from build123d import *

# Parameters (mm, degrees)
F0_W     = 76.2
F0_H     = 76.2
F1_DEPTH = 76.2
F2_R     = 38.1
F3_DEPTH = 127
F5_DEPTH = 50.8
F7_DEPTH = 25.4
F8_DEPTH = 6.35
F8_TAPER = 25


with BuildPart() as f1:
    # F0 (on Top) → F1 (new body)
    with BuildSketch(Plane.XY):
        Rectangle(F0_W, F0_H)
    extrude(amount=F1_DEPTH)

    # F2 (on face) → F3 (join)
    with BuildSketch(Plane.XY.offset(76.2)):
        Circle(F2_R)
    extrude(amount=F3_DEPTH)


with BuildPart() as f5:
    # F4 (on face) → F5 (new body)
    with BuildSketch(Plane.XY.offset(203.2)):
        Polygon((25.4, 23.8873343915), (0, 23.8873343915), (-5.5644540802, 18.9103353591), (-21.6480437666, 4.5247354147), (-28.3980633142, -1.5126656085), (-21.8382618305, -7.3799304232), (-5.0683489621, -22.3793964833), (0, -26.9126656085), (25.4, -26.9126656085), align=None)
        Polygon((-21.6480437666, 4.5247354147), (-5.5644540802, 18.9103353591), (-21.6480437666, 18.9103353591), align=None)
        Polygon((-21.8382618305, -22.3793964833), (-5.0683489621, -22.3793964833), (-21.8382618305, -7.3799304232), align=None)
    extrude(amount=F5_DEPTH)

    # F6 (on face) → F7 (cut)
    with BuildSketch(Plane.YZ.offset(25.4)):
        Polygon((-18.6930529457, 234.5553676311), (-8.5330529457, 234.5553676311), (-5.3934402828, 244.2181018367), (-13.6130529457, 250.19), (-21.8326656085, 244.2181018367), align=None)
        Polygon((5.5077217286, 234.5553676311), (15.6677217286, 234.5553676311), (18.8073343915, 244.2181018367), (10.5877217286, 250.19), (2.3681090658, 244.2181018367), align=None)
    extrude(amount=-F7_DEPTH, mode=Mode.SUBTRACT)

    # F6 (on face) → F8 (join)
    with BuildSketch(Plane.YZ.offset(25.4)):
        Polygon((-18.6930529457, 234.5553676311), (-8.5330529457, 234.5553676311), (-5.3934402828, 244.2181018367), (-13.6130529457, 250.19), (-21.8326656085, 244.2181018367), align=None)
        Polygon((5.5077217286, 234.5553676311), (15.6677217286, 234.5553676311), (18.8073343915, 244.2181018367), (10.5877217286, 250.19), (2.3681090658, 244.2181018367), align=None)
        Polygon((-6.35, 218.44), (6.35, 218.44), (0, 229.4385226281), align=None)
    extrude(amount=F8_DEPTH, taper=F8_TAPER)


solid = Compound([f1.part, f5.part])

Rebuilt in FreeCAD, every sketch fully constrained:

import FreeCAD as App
import Part
import Sketcher
from FreeCAD import Vector
Q = App.Units.Quantity

doc = App.newDocument("Part")
body = doc.addObject("PartDesign::Body", "Body")

sketch1 = body.newObject("Sketcher::SketchObject", "Sketch")
sketch1.AttachmentSupport = (doc.getObject("XY_Plane"), [""])
sketch1.MapMode = "FlatFace"
sketch1.addGeometry(Part.LineSegment(Vector(-38, 38, 0), Vector(-38, -38, 0)), False)
sketch1.addGeometry(Part.LineSegment(Vector(-38, -38, 0), Vector(38, -38, 0)), False)
sketch1.addGeometry(Part.LineSegment(Vector(38, -38, 0), Vector(38, 38, 0)), False)
sketch1.addGeometry(Part.LineSegment(Vector(38, 38, 0), Vector(-38, 38, 0)), False)
sketch1.addConstraint(Sketcher.Constraint("Coincident", 0, 2, 1, 1))
sketch1.addConstraint(Sketcher.Constraint("Coincident", 1, 2, 2, 1))
sketch1.addConstraint(Sketcher.Constraint("Coincident", 2, 2, 3, 1))
sketch1.addConstraint(Sketcher.Constraint("Coincident", 3, 2, 0, 1))
sketch1.addConstraint(Sketcher.Constraint("Vertical", 0))
sketch1.addConstraint(Sketcher.Constraint("Horizontal", 1))
sketch1.addConstraint(Sketcher.Constraint("Vertical", 2))
sketch1.addConstraint(Sketcher.Constraint("Horizontal", 3))
sketch1.addConstraint(Sketcher.Constraint("Symmetric", 0, 2, 2, 2, -1, 1))
sketch1.addConstraint(Sketcher.Constraint("Equal", 3, 0))
sketch1.addConstraint(Sketcher.Constraint("DistanceX", 1, 1, 1, 2, Q("3 in")))
pad1 = body.newObject("PartDesign::Pad", "Pad")
pad1.Profile = sketch1
pad1.Length = Q("3 in")

sketch2 = body.newObject("Sketcher::SketchObject", "Sketch001")
sketch2.AttachmentSupport = (doc.getObject("XY_Plane"), [""])
sketch2.MapMode = "FlatFace"
sketch2.AttachmentOffset = App.Placement(Vector(0, 0, 3 * 25.4), App.Rotation())
sketch2.addGeometry(Part.Circle(Vector(0, 0, 0), Vector(0, 0, 1), 38), False)
sketch2.addConstraint(Sketcher.Constraint("Coincident", 0, 3, -1, 1))
sketch2.addConstraint(Sketcher.Constraint("Diameter", 0, Q("3 in")))
pad2 = body.newObject("PartDesign::Pad", "Pad001")
pad2.Profile = sketch2
pad2.Length = Q("5 in")
body2 = doc.addObject("PartDesign::Body", "Body001")
body2.AllowCompound = True

sketch3 = body2.newObject("Sketcher::SketchObject", "Sketch002")
sketch3.AttachmentSupport = (doc.getObject("XY_Plane001"), [""])
sketch3.MapMode = "FlatFace"
sketch3.AttachmentOffset = App.Placement(Vector(0, 0, 8 * 25.4), App.Rotation())
sketch3.addGeometry(Part.LineSegment(Vector(25, 24, 0), Vector(0, 24, 0)), False)
sketch3.addGeometry(Part.LineSegment(Vector(0, 24, 0), Vector(-6, 19, 0)), False)
sketch3.addGeometry(Part.LineSegment(Vector(-6, 19, 0), Vector(-22, 19, 0)), False)
sketch3.addGeometry(Part.LineSegment(Vector(-22, 19, 0), Vector(-22, 5, 0)), False)
sketch3.addGeometry(Part.LineSegment(Vector(-22, 5, 0), Vector(-28, -2, 0)), False)
sketch3.addGeometry(Part.LineSegment(Vector(-28, -2, 0), Vector(-22, -7, 0)), False)
sketch3.addGeometry(Part.LineSegment(Vector(-22, -7, 0), Vector(-22, -22, 0)), False)
sketch3.addGeometry(Part.LineSegment(Vector(-22, -22, 0), Vector(-5, -22, 0)), False)
sketch3.addGeometry(Part.LineSegment(Vector(-5, -22, 0), Vector(0, -27, 0)), False)
sketch3.addGeometry(Part.LineSegment(Vector(0, -27, 0), Vector(25, -27, 0)), False)
sketch3.addGeometry(Part.LineSegment(Vector(25, -27, 0), Vector(25, 24, 0)), False)
sketch3.addConstraint(Sketcher.Constraint("Coincident", 0, 2, 1, 1))
sketch3.addConstraint(Sketcher.Constraint("Coincident", 1, 2, 2, 1))
sketch3.addConstraint(Sketcher.Constraint("Coincident", 2, 2, 3, 1))
sketch3.addConstraint(Sketcher.Constraint("Coincident", 3, 2, 4, 1))
sketch3.addConstraint(Sketcher.Constraint("Coincident", 4, 2, 5, 1))
sketch3.addConstraint(Sketcher.Constraint("Coincident", 5, 2, 6, 1))
sketch3.addConstraint(Sketcher.Constraint("Coincident", 6, 2, 7, 1))
sketch3.addConstraint(Sketcher.Constraint("Coincident", 7, 2, 8, 1))
sketch3.addConstraint(Sketcher.Constraint("Coincident", 8, 2, 9, 1))
sketch3.addConstraint(Sketcher.Constraint("Coincident", 9, 2, 10, 1))
sketch3.addConstraint(Sketcher.Constraint("Coincident", 10, 2, 0, 1))
sketch3.addConstraint(Sketcher.Constraint("Horizontal", 0))
sketch3.addConstraint(Sketcher.Constraint("Horizontal", 2))
sketch3.addConstraint(Sketcher.Constraint("Vertical", 3))
sketch3.addConstraint(Sketcher.Constraint("Vertical", 6))
sketch3.addConstraint(Sketcher.Constraint("Horizontal", 7))
sketch3.addConstraint(Sketcher.Constraint("Horizontal", 9))
sketch3.addConstraint(Sketcher.Constraint("Vertical", 10))
sketch3.addConstraint(Sketcher.Constraint("PointOnObject", 0, 2, -2))
sketch3.addConstraint(Sketcher.Constraint("PointOnObject", 8, 2, -2))
sketch3.addConstraint(Sketcher.Constraint("Parallel", 1, 4))
sketch3.addConstraint(Sketcher.Constraint("Parallel", 5, 8))
sketch3.addConstraint(Sketcher.Constraint("DistanceX", 0, 2, 0, 1, Q("1 in")))
sketch3.addConstraint(Sketcher.Constraint("DistanceY", 10, 1, 10, 2, Q("2 in")))
sketch3.addConstraint(Sketcher.Constraint("DistanceY", 4, 2, 0, 2, Q("1 in")))
sketch3.addConstraint(Sketcher.Constraint("DistanceY", 3, 2, 3, 1, 14.3856))
sketch3.addConstraint(Sketcher.Constraint("Distance", 1, 7.465499))
sketch3.addConstraint(Sketcher.Constraint("Distance", 4, 9.056102))
sketch3.addConstraint(Sketcher.Constraint("DistanceX", 2, 2, 2, 1, 16.08359))
sketch3.addConstraint(Sketcher.Constraint("DistanceX", 4, 2, 5, 2, 6.559801))
sketch3.addConstraint(Sketcher.Constraint("DistanceX", 7, 1, 7, 2, 16.769913))
sketch3.addConstraint(Sketcher.Constraint("DistanceY", 6, 2, 6, 1, 14.999466))
sketch3.addConstraint(Sketcher.Constraint("DistanceY", 5, 2, -1, 1, 7.37993))
pad3 = body2.newObject("PartDesign::Pad", "Pad002")
pad3.Profile = sketch3
pad3.Length = Q("2 in")

sketch4 = body2.newObject("Sketcher::SketchObject", "Sketch003")
sketch4.AttachmentSupport = (doc.getObject("YZ_Plane001"), [""])
sketch4.MapMode = "FlatFace"
sketch4.AttachmentOffset = App.Placement(Vector(0, 0, 1 * 25.4), App.Rotation())
sketch4.addGeometry(Part.LineSegment(Vector(-19, 235, 0), Vector(-9, 235, 0)), False)
sketch4.addGeometry(Part.LineSegment(Vector(-9, 235, 0), Vector(-5, 244, 0)), False)
sketch4.addGeometry(Part.LineSegment(Vector(-5, 244, 0), Vector(-14, 250, 0)), False)
sketch4.addGeometry(Part.LineSegment(Vector(-14, 250, 0), Vector(-22, 244, 0)), False)
sketch4.addGeometry(Part.LineSegment(Vector(-22, 244, 0), Vector(-19, 235, 0)), False)
sketch4.addGeometry(Part.LineSegment(Vector(6, 235, 0), Vector(16, 235, 0)), False)
sketch4.addGeometry(Part.LineSegment(Vector(16, 235, 0), Vector(19, 244, 0)), False)
sketch4.addGeometry(Part.LineSegment(Vector(19, 244, 0), Vector(11, 250, 0)), False)
sketch4.addGeometry(Part.LineSegment(Vector(11, 250, 0), Vector(2, 244, 0)), False)
sketch4.addGeometry(Part.LineSegment(Vector(2, 244, 0), Vector(6, 235, 0)), False)
sketch4.addConstraint(Sketcher.Constraint("Coincident", 0, 2, 1, 1))
sketch4.addConstraint(Sketcher.Constraint("Coincident", 1, 2, 2, 1))
sketch4.addConstraint(Sketcher.Constraint("Coincident", 2, 2, 3, 1))
sketch4.addConstraint(Sketcher.Constraint("Coincident", 3, 2, 4, 1))
sketch4.addConstraint(Sketcher.Constraint("Coincident", 4, 2, 0, 1))
sketch4.addConstraint(Sketcher.Constraint("Coincident", 5, 2, 6, 1))
sketch4.addConstraint(Sketcher.Constraint("Coincident", 6, 2, 7, 1))
sketch4.addConstraint(Sketcher.Constraint("Coincident", 7, 2, 8, 1))
sketch4.addConstraint(Sketcher.Constraint("Coincident", 8, 2, 9, 1))
sketch4.addConstraint(Sketcher.Constraint("Coincident", 9, 2, 5, 1))
sketch4.addConstraint(Sketcher.Constraint("Horizontal", 0))
sketch4.addConstraint(Sketcher.Constraint("Horizontal", 5))
sketch4.addConstraint(Sketcher.Constraint("Parallel", 1, 6))
sketch4.addConstraint(Sketcher.Constraint("Parallel", 2, 7))
sketch4.addConstraint(Sketcher.Constraint("Parallel", 3, 8))
sketch4.addConstraint(Sketcher.Constraint("Parallel", 4, 9))
sketch4.addConstraint(Sketcher.Constraint("Horizontal", 1, 2, 3, 2))
sketch4.addConstraint(Sketcher.Constraint("Horizontal", 4, 2, 5, 2))
sketch4.addConstraint(Sketcher.Constraint("Horizontal", 3, 2, 6, 2))
sketch4.addConstraint(Sketcher.Constraint("Horizontal", 2, 2, 7, 2))
sketch4.addConstraint(Sketcher.Constraint("Horizontal", 6, 2, 8, 2))
sketch4.addConstraint(Sketcher.Constraint("Equal", 1, 2))
sketch4.addConstraint(Sketcher.Constraint("Equal", 2, 3))
sketch4.addConstraint(Sketcher.Constraint("Equal", 3, 4))
sketch4.addConstraint(Sketcher.Constraint("DistanceX", 0, 1, 0, 2, Q("0.4 in")))
sketch4.addConstraint(Sketcher.Constraint("Angle", 1, Q("72 deg")))
sketch4.addConstraint(Sketcher.Constraint("Angle", 2, Q("144 deg")))
sketch4.addConstraint(Sketcher.Constraint("DistanceY", -1, 1, 2, 2, Q("9.85 in")))
sketch4.addConstraint(Sketcher.Constraint("DistanceX", 1, 2, -1, 1, 5.39344))
sketch4.addConstraint(Sketcher.Constraint("DistanceX", -1, 1, 5, 2, 15.667722))
pocket1 = body2.newObject("PartDesign::Pocket", "Pocket")
pocket1.Profile = sketch4
pocket1.Length = Q("1 in")

sketch5 = body2.newObject("Sketcher::SketchObject", "Sketch004")
sketch5.AttachmentSupport = (doc.getObject("YZ_Plane001"), [""])
sketch5.MapMode = "FlatFace"
sketch5.AttachmentOffset = App.Placement(Vector(0, 0, 1 * 25.4), App.Rotation())
sketch5.addGeometry(Part.LineSegment(Vector(-19, 235, 0), Vector(-9, 235, 0)), False)
sketch5.addGeometry(Part.LineSegment(Vector(-9, 235, 0), Vector(-5, 244, 0)), False)
sketch5.addGeometry(Part.LineSegment(Vector(-5, 244, 0), Vector(-14, 250, 0)), False)
sketch5.addGeometry(Part.LineSegment(Vector(-14, 250, 0), Vector(-22, 244, 0)), False)
sketch5.addGeometry(Part.LineSegment(Vector(-22, 244, 0), Vector(-19, 235, 0)), False)
sketch5.addGeometry(Part.LineSegment(Vector(6, 235, 0), Vector(16, 235, 0)), False)
sketch5.addGeometry(Part.LineSegment(Vector(16, 235, 0), Vector(19, 244, 0)), False)
sketch5.addGeometry(Part.LineSegment(Vector(19, 244, 0), Vector(11, 250, 0)), False)
sketch5.addGeometry(Part.LineSegment(Vector(11, 250, 0), Vector(2, 244, 0)), False)
sketch5.addGeometry(Part.LineSegment(Vector(2, 244, 0), Vector(6, 235, 0)), False)
sketch5.addGeometry(Part.LineSegment(Vector(-6, 218, 0), Vector(6, 218, 0)), False)
sketch5.addGeometry(Part.LineSegment(Vector(6, 218, 0), Vector(0, 229, 0)), False)
sketch5.addGeometry(Part.LineSegment(Vector(0, 229, 0), Vector(-6, 218, 0)), False)
sketch5.addConstraint(Sketcher.Constraint("Coincident", 0, 2, 1, 1))
sketch5.addConstraint(Sketcher.Constraint("Coincident", 1, 2, 2, 1))
sketch5.addConstraint(Sketcher.Constraint("Coincident", 2, 2, 3, 1))
sketch5.addConstraint(Sketcher.Constraint("Coincident", 3, 2, 4, 1))
sketch5.addConstraint(Sketcher.Constraint("Coincident", 4, 2, 0, 1))
sketch5.addConstraint(Sketcher.Constraint("Coincident", 5, 2, 6, 1))
sketch5.addConstraint(Sketcher.Constraint("Coincident", 6, 2, 7, 1))
sketch5.addConstraint(Sketcher.Constraint("Coincident", 7, 2, 8, 1))
sketch5.addConstraint(Sketcher.Constraint("Coincident", 8, 2, 9, 1))
sketch5.addConstraint(Sketcher.Constraint("Coincident", 9, 2, 5, 1))
sketch5.addConstraint(Sketcher.Constraint("Coincident", 10, 2, 11, 1))
sketch5.addConstraint(Sketcher.Constraint("Coincident", 11, 2, 12, 1))
sketch5.addConstraint(Sketcher.Constraint("Coincident", 12, 2, 10, 1))
sketch5.addConstraint(Sketcher.Constraint("Horizontal", 0))
sketch5.addConstraint(Sketcher.Constraint("Horizontal", 5))
sketch5.addConstraint(Sketcher.Constraint("Horizontal", 10))
sketch5.addConstraint(Sketcher.Constraint("PointOnObject", 11, 2, -2))
sketch5.addConstraint(Sketcher.Constraint("Parallel", 1, 6))
sketch5.addConstraint(Sketcher.Constraint("Parallel", 2, 7))
sketch5.addConstraint(Sketcher.Constraint("Parallel", 3, 8))
sketch5.addConstraint(Sketcher.Constraint("Parallel", 4, 9))
sketch5.addConstraint(Sketcher.Constraint("Horizontal", 1, 2, 3, 2))
sketch5.addConstraint(Sketcher.Constraint("Horizontal", 4, 2, 5, 2))
sketch5.addConstraint(Sketcher.Constraint("Horizontal", 3, 2, 6, 2))
sketch5.addConstraint(Sketcher.Constraint("Horizontal", 2, 2, 7, 2))
sketch5.addConstraint(Sketcher.Constraint("Horizontal", 6, 2, 8, 2))
sketch5.addConstraint(Sketcher.Constraint("Equal", 1, 2))
sketch5.addConstraint(Sketcher.Constraint("Equal", 2, 3))
sketch5.addConstraint(Sketcher.Constraint("Equal", 3, 4))
sketch5.addConstraint(Sketcher.Constraint("Equal", 11, 12))
sketch5.addConstraint(Sketcher.Constraint("DistanceX", 0, 1, 0, 2, Q("0.4 in")))
sketch5.addConstraint(Sketcher.Constraint("DistanceX", 10, 1, 10, 2, Q("0.5 in")))
sketch5.addConstraint(Sketcher.Constraint("Angle", 1, Q("72 deg")))
sketch5.addConstraint(Sketcher.Constraint("Angle", 2, Q("144 deg")))
sketch5.addConstraint(Sketcher.Constraint("Angle", 11, Q("120 deg")))
sketch5.addConstraint(Sketcher.Constraint("DistanceY", -1, 1, 10, 2, Q("8.6 in")))
sketch5.addConstraint(Sketcher.Constraint("DistanceY", -1, 1, 2, 2, Q("9.85 in")))
sketch5.addConstraint(Sketcher.Constraint("DistanceX", 1, 2, -1, 1, 5.39344))
sketch5.addConstraint(Sketcher.Constraint("DistanceX", -1, 1, 5, 2, 15.667722))
pad4 = body2.newObject("PartDesign::Pad", "Pad003")
pad4.Profile = sketch5
pad4.Length = Q("0.25 in")
pad4.TaperAngle = -25

doc.recompute()
